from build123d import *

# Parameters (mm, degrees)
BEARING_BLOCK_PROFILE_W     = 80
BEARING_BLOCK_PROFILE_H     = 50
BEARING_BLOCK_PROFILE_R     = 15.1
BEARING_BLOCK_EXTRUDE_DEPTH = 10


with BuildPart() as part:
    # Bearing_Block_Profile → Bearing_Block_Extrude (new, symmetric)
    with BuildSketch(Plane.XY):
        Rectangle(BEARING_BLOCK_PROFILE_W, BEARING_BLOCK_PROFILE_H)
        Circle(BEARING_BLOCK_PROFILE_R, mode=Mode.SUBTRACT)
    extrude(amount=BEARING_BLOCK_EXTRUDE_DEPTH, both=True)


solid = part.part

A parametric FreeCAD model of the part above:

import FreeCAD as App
import Part
import Sketcher
from FreeCAD import Vector
Q = App.Units.Quantity

doc = App.newDocument("Part")
params = doc.addObject("Spreadsheet::Sheet", "Params")
for row, (alias, value) in enumerate([
    ("sketch1_diameter", "30.2 mm"),
    ("sketch1_width", "80 mm"),
    ("sketch1_height", "50 mm"),
    ("pad1_length", "20 mm"),
], start=1):
    params.set(f"A{row}", alias)
    params.set(f"B{row}", "=" + value)
    params.setAlias(f"B{row}", alias)

body = doc.addObject("PartDesign::Body", "Body")

sketch1 = body.newObject("Sketcher::SketchObject", "Sketch")
sketch1.AttachmentSupport = (doc.getObject("XY_Plane"), [""])
sketch1.MapMode = "FlatFace"
sketch1.addGeometry([
    Part.LineSegment(Vector(-40, 25, 0), Vector(-40, -25, 0)),
    Part.LineSegment(Vector(-40, -25, 0), Vector(40, -25, 0)),
    Part.LineSegment(Vector(40, -25, 0), Vector(40, 25, 0)),
    Part.LineSegment(Vector(40, 25, 0), Vector(-40, 25, 0)),
    Part.Circle(Vector(0, 0, 0), Vector(0, 0, 1), 15),
], False)
sketch1.addConstraint([
    Sketcher.Constraint("Coincident", 0, 2, 1, 1),
    Sketcher.Constraint("Coincident", 1, 2, 2, 1),
    Sketcher.Constraint("Coincident", 2, 2, 3, 1),
    Sketcher.Constraint("Coincident", 3, 2, 0, 1),
    Sketcher.Constraint("Vertical", 0),
    Sketcher.Constraint("Horizontal", 1),
    Sketcher.Constraint("Vertical", 2),
    Sketcher.Constraint("Horizontal", 3),
    Sketcher.Constraint("Coincident", 4, 3, -1, 1),
    Sketcher.Constraint("Symmetric", 0, 2, 2, 2, -1, 1),
    Sketcher.Constraint("Diameter", 4, Q("30.2 mm")),
    Sketcher.Constraint("DistanceX", 1, 1, 1, 2, Q("80 mm")),
    Sketcher.Constraint("DistanceY", 0, 2, 0, 1, Q("50 mm")),
])
sketch1.setExpression("Constraints[10]", "Params.sketch1_diameter")
sketch1.setExpression("Constraints[11]", "Params.sketch1_width")
sketch1.setExpression("Constraints[12]", "Params.sketch1_height")
pad1 = body.newObject("PartDesign::Pad", "Pad")
pad1.Profile = sketch1
pad1.setExpression("Length", "Params.pad1_length")
pad1.Midplane = True

doc.recompute()
